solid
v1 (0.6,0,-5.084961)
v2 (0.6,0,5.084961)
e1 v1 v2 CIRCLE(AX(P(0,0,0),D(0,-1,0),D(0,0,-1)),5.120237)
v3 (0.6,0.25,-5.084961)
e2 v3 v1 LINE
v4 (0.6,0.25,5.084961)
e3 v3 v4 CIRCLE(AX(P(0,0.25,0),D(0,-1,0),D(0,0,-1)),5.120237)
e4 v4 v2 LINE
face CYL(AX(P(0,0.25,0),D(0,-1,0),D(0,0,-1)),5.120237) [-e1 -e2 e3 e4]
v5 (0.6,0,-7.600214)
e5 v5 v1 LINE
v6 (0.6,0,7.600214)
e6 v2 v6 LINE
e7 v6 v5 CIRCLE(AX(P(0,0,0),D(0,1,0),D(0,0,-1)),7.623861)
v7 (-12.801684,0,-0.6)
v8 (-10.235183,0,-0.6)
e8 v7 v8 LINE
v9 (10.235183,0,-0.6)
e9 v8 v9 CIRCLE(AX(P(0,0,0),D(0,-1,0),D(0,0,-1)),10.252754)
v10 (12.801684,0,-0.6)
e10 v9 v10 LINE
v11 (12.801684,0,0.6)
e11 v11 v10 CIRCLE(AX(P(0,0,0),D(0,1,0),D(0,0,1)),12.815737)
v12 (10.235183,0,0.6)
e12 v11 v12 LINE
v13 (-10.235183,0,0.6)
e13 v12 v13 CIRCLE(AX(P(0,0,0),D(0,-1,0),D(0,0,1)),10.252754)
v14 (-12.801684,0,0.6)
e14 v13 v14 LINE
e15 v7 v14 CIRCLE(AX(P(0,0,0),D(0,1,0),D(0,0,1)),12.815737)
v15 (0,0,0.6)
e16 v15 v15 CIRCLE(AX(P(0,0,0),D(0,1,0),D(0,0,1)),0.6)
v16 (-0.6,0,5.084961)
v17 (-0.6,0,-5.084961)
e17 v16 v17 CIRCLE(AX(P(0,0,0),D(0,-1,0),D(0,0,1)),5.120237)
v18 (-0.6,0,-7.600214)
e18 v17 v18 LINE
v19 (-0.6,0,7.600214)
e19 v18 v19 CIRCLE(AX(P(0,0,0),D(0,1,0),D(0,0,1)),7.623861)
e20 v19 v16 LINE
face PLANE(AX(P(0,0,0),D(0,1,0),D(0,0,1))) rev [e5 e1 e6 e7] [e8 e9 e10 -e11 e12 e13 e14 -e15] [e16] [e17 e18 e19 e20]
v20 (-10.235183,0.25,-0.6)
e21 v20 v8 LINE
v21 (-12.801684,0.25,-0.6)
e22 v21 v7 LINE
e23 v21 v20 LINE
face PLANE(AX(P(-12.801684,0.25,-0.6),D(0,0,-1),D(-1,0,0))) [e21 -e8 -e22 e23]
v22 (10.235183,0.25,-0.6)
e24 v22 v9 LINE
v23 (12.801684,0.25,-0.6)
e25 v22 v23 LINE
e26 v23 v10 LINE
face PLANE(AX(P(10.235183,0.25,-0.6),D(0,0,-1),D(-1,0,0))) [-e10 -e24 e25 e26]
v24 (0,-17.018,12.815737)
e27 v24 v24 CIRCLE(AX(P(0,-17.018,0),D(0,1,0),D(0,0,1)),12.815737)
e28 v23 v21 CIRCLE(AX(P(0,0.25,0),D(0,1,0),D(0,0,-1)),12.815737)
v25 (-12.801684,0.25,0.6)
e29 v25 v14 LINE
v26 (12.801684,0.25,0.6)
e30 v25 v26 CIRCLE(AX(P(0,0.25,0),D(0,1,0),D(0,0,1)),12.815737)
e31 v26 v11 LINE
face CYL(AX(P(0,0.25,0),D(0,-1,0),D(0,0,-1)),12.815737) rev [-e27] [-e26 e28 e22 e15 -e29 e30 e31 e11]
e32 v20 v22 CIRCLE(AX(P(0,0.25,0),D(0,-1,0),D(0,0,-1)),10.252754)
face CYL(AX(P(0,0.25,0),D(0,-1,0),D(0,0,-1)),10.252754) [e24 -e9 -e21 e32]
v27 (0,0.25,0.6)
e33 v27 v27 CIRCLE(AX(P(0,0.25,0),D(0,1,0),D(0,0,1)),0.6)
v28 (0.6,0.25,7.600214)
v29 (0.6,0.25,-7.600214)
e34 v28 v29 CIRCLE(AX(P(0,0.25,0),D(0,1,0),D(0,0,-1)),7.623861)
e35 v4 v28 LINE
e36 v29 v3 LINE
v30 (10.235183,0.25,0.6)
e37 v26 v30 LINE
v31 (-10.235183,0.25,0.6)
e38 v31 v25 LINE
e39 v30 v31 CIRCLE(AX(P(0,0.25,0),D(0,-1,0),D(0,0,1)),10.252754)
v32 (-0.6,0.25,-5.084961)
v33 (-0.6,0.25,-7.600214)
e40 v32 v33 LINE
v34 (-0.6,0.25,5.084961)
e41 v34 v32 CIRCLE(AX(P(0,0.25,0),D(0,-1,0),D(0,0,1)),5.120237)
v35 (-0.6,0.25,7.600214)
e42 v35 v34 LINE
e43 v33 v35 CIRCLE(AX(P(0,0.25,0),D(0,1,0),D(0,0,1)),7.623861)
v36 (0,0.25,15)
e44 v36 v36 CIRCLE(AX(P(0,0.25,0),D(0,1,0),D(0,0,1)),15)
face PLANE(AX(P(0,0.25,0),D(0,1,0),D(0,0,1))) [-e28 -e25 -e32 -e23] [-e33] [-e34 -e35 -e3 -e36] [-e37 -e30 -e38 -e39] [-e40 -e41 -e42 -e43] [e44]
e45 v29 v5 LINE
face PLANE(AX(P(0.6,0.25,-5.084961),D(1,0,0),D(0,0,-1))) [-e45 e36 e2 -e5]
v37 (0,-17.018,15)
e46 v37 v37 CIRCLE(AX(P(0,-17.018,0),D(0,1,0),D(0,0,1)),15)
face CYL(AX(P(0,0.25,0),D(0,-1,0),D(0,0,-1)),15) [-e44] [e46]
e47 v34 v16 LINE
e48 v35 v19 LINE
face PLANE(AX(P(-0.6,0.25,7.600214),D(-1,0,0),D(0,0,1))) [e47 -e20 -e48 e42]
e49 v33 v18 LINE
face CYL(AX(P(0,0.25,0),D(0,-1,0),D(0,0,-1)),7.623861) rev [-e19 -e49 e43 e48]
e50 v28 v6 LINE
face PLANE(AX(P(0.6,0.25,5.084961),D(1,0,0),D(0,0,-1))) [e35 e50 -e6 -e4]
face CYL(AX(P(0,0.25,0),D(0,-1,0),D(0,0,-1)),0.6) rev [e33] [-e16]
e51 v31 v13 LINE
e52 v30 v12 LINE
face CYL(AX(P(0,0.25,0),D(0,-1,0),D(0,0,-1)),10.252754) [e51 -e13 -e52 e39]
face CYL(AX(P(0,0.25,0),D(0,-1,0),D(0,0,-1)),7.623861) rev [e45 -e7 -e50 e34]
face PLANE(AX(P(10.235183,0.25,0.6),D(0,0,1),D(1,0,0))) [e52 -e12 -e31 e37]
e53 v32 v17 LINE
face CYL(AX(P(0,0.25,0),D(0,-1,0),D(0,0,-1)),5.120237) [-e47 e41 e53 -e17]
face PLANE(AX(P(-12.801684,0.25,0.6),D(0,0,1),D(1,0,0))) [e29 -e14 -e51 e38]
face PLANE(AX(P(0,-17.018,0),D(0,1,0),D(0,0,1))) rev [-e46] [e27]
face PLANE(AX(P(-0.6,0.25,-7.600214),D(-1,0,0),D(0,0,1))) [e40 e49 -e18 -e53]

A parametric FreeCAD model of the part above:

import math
import FreeCAD as App
import Part
import Sketcher
Q = App.Units.Quantity

doc = App.newDocument("Part")
body = doc.addObject("PartDesign::Body", "Body")

sketch1 = doc.addObject("Sketcher::SketchObject", "Sketch")
body.addObject(sketch1)
sketch1.AttachmentSupport = (doc.XZ_Plane, [""])
sketch1.MapMode = "FlatFace"
sketch1.addGeometry(Part.Circle(App.Vector(0, 0, 0), App.Vector(0, 0, 1), 15), False)
sketch1.addGeometry(Part.ArcOfCircle(Part.Circle(App.Vector(0, 0, 0), App.Vector(0, 0, 1), 12.815737), math.radians(2.683423), math.radians(177.316577)), False)
sketch1.addGeometry(Part.LineSegment(App.Vector(-12.801684, 0.6, 0), App.Vector(-10.235183, 0.6, 0)), False)
sketch1.addGeometry(Part.ArcOfCircle(Part.Circle(App.Vector(0, 0, 0), App.Vector(0, 0, 1), 10.252754), math.radians(3.354915), math.radians(176.645085)), False)
sketch1.addGeometry(Part.LineSegment(App.Vector(10.235183, 0.6, 0), App.Vector(12.801684, 0.6, 0)), False)
sketch1.addGeometry(Part.ArcOfCircle(Part.Circle(App.Vector(0, 0, 0), App.Vector(0, 0, 1), 7.623861), math.radians(94.513862), math.radians(265.486138)), False)
sketch1.addGeometry(Part.LineSegment(App.Vector(-0.6, -7.600214, 0), App.Vector(-0.6, -5.084961, 0)), False)
sketch1.addGeometry(Part.ArcOfCircle(Part.Circle(App.Vector(0, 0, 0), App.Vector(0, 0, 1), 5.120237), math.radians(96.7295), math.radians(263.2705)), False)
sketch1.addGeometry(Part.LineSegment(App.Vector(-0.6, 5.084961, 0), App.Vector(-0.6, 7.600214, 0)), False)
sketch1.addGeometry(Part.Circle(App.Vector(0, 0, 0), App.Vector(0, 0, 1), 0.6), False)
sketch1.addGeometry(Part.ArcOfCircle(Part.Circle(App.Vector(0, 0, 0), App.Vector(0, 0, 1), 5.120237), math.radians(-83.2705), math.radians(83.2705)), False)
sketch1.addGeometry(Part.LineSegment(App.Vector(0.6, -5.084961, 0), App.Vector(0.6, -7.600214, 0)), False)
sketch1.addGeometry(Part.ArcOfCircle(Part.Circle(App.Vector(0, 0, 0), App.Vector(0, 0, 1), 7.623861), math.radians(-85.486138), math.radians(85.486138)), False)
sketch1.addGeometry(Part.LineSegment(App.Vector(0.6, 7.600214, 0), App.Vector(0.6, 5.084961, 0)), False)
sketch1.addGeometry(Part.LineSegment(App.Vector(-10.235183, -0.6, 0), App.Vector(-12.801684, -0.6, 0)), False)
sketch1.addGeometry(Part.ArcOfCircle(Part.Circle(App.Vector(0, 0, 0), App.Vector(0, 0, 1), 12.815737), math.radians(-177.316577), math.radians(-2.683423)), False)
sketch1.addGeometry(Part.LineSegment(App.Vector(12.801684, -0.6, 0), App.Vector(10.235183, -0.6, 0)), False)
sketch1.addGeometry(Part.ArcOfCircle(Part.Circle(App.Vector(0, 0, 0), App.Vector(0, 0, 1), 10.252754), math.radians(-176.645085), math.radians(-3.354915)), False)
sketch1.addConstraint(Sketcher.Constraint("Coincident", 1, 2, 2, 1))
sketch1.addConstraint(Sketcher.Constraint("Coincident", 2, 2, 3, 2))
sketch1.addConstraint(Sketcher.Constraint("Coincident", 3, 1, 4, 1))
sketch1.addConstraint(Sketcher.Constraint("Coincident", 4, 2, 1, 1))
sketch1.addConstraint(Sketcher.Constraint("Coincident", 5, 2, 6, 1))
sketch1.addConstraint(Sketcher.Constraint("Coincident", 6, 2, 7, 2))
sketch1.addConstraint(Sketcher.Constraint("Coincident", 7, 1, 8, 1))
sketch1.addConstraint(Sketcher.Constraint("Coincident", 8, 2, 5, 1))
sketch1.addConstraint(Sketcher.Constraint("Coincident", 10, 1, 11, 1))
sketch1.addConstraint(Sketcher.Constraint("Coincident", 11, 2, 12, 1))
sketch1.addConstraint(Sketcher.Constraint("Coincident", 12, 2, 13, 1))
sketch1.addConstraint(Sketcher.Constraint("Coincident", 13, 2, 10, 2))
sketch1.addConstraint(Sketcher.Constraint("Coincident", 14, 2, 15, 1))
sketch1.addConstraint(Sketcher.Constraint("Coincident", 15, 2, 16, 1))
sketch1.addConstraint(Sketcher.Constraint("Coincident", 16, 2, 17, 2))
sketch1.addConstraint(Sketcher.Constraint("Coincident", 17, 1, 14, 1))
sketch1.addConstraint(Sketcher.Constraint("Horizontal", 2))
sketch1.addConstraint(Sketcher.Constraint("Horizontal", 4))
sketch1.addConstraint(Sketcher.Constraint("Vertical", 6))
sketch1.addConstraint(Sketcher.Constraint("Vertical", 8))
sketch1.addConstraint(Sketcher.Constraint("Vertical", 11))
sketch1.addConstraint(Sketcher.Constraint("Vertical", 13))
sketch1.addConstraint(Sketcher.Constraint("Horizontal", 14))
sketch1.addConstraint(Sketcher.Constraint("Horizontal", 16))
sketch1.addConstraint(Sketcher.Constraint("Coincident", 0, 3, -1, 1))
sketch1.addConstraint(Sketcher.Constraint("Coincident", 1, 3, -1, 1))
sketch1.addConstraint(Sketcher.Constraint("Coincident", 3, 3, -1, 1))
sketch1.addConstraint(Sketcher.Constraint("Coincident", 5, 3, -1, 1))
sketch1.addConstraint(Sketcher.Constraint("Coincident", 7, 3, -1, 1))
sketch1.addConstraint(Sketcher.Constraint("Coincident", 9, 3, -1, 1))
sketch1.addConstraint(Sketcher.Constraint("Coincident", 10, 3, -1, 1))
sketch1.addConstraint(Sketcher.Constraint("Coincident", 12, 3, -1, 1))
sketch1.addConstraint(Sketcher.Constraint("Coincident", 15, 3, -1, 1))
sketch1.addConstraint(Sketcher.Constraint("Coincident", 17, 3, -1, 1))
sketch1.addConstraint(Sketcher.Constraint("Equal", 7, 10))
sketch1.addConstraint(Sketcher.Constraint("Equal", 5, 12))
sketch1.addConstraint(Sketcher.Constraint("Equal", 1, 15))
sketch1.addConstraint(Sketcher.Constraint("Equal", 3, 17))
sketch1.addConstraint(Sketcher.Constraint("Horizontal", 2, 2, 3, 1))
sketch1.addConstraint(Sketcher.Constraint("Horizontal", 6, 2, 10, 1))
sketch1.addConstraint(Sketcher.Constraint("Horizontal", 8, 2, 12, 2))
sketch1.addConstraint(Sketcher.Constraint("Horizontal", 14, 2, 15, 2))
sketch1.addConstraint(Sketcher.Constraint("Vertical", 6, 2, 7, 1))
sketch1.addConstraint(Sketcher.Constraint("Vertical", 1, 2, 14, 2))
sketch1.addConstraint(Sketcher.Constraint("Diameter", 0, Q("30 mm")))
sketch1.addConstraint(Sketcher.Constraint("Diameter", 9, Q("1.2 mm")))
sketch1.addConstraint(Sketcher.Constraint("DistanceY", -1, 1, 1, 2, Q("0.6 mm")))
sketch1.addConstraint(Sketcher.Constraint("DistanceX", 5, 2, -1, 1, Q("0.6 mm")))
sketch1.addConstraint(Sketcher.Constraint("Radius", 5, Q("7.623861 mm")))
sketch1.addConstraint(Sketcher.Constraint("DistanceX", 2, 1, 2, 2, Q("2.566502 mm")))
sketch1.addConstraint(Sketcher.Constraint("Radius", 1, Q("12.815737 mm")))
sketch1.addConstraint(Sketcher.Constraint("Radius", 7, Q("5.120237 mm")))
pad1 = doc.addObject("PartDesign::Pad", "Pad")
body.addObject(pad1)
pad1.Profile = sketch1
pad1.Length = 0.25
pad1.Reversed = True

sketch2 = doc.addObject("Sketcher::SketchObject", "Sketch001")
body.addObject(sketch2)
sketch2.AttachmentSupport = (doc.XZ_Plane, [""])
sketch2.MapMode = "FlatFace"
sketch2.AttachmentOffset = App.Placement(App.Vector(0, 0, -0.25), App.Rotation())
sketch2.addGeometry(Part.Circle(App.Vector(0, 0, 0), App.Vector(0, 0, 1), 15), False)
sketch2.addGeometry(Part.Circle(App.Vector(0, 0, 0), App.Vector(0, 0, 1), 12.815737), False)
sketch2.addConstraint(Sketcher.Constraint("Coincident", 0, 3, -1, 1))
sketch2.addConstraint(Sketcher.Constraint("Coincident", 1, 3, -1, 1))
sketch2.addConstraint(Sketcher.Constraint("Diameter", 0, Q("30 mm")))
sketch2.addConstraint(Sketcher.Constraint("Diameter", 1, Q("25.631475 mm")))
pad2 = doc.addObject("PartDesign::Pad", "Pad001")
body.addObject(pad2)
pad2.Profile = sketch2
pad2.Length = 17.268

doc.recompute()
